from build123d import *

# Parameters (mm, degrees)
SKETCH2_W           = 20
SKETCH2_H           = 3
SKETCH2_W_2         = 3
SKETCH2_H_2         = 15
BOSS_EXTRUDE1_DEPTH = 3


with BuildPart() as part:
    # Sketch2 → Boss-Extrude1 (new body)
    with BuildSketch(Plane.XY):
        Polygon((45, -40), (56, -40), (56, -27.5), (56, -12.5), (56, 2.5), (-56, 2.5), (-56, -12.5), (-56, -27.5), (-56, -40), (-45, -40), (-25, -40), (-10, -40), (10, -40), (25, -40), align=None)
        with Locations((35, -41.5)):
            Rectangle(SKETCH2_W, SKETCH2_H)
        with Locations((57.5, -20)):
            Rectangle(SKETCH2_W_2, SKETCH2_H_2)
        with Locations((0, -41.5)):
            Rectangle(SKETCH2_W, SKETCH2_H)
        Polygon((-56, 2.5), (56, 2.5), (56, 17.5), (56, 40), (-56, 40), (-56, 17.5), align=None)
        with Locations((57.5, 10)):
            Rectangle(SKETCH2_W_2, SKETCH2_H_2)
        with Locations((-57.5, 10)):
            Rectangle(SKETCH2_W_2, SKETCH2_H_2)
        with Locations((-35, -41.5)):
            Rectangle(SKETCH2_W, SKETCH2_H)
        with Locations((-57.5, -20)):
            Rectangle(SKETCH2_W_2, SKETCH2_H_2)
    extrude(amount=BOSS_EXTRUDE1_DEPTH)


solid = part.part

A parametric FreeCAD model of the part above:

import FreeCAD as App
import Part
import Sketcher
from FreeCAD import Vector
Q = App.Units.Quantity

doc = App.newDocument("Part")
body = doc.addObject("PartDesign::Body", "Body")

# Sketch on XY plane
sketch1 = body.newObject("Sketcher::SketchObject", "Sketch")
sketch1.AttachmentSupport = (doc.getObject("XY_Plane"), [""])
sketch1.MapMode = "FlatFace"
sketch1.addGeometry(Part.LineSegment(Vector(56, -40, 0), Vector(56, -27.5, 0)), False)
sketch1.addGeometry(Part.LineSegment(Vector(56, -27.5, 0), Vector(59, -27.5, 0)), False)
sketch1.addGeometry(Part.LineSegment(Vector(59, -27.5, 0), Vector(59, -12.5, 0)), False)
sketch1.addGeometry(Part.LineSegment(Vector(59, -12.5, 0), Vector(56, -12.5, 0)), False)
sketch1.addGeometry(Part.LineSegment(Vector(56, -12.5, 0), Vector(56, 2.5, 0)), False)
sketch1.addGeometry(Part.LineSegment(Vector(56, 2.5, 0), Vector(59, 2.5, 0)), False)
sketch1.addGeometry(Part.LineSegment(Vector(59, 2.5, 0), Vector(59, 17.5, 0)), False)
sketch1.addGeometry(Part.LineSegment(Vector(59, 17.5, 0), Vector(56, 17.5, 0)), False)
sketch1.addGeometry(Part.LineSegment(Vector(56, 17.5, 0), Vector(56, 40, 0)), False)
sketch1.addGeometry(Part.LineSegment(Vector(56, 40, 0), Vector(-56, 40, 0)), False)
sketch1.addGeometry(Part.LineSegment(Vector(-56, 40, 0), Vector(-56, 17.5, 0)), False)
sketch1.addGeometry(Part.LineSegment(Vector(-56, 17.5, 0), Vector(-59, 17.5, 0)), False)
sketch1.addGeometry(Part.LineSegment(Vector(-59, 17.5, 0), Vector(-59, 2.5, 0)), False)
sketch1.addGeometry(Part.LineSegment(Vector(-59, 2.5, 0), Vector(-56, 2.5, 0)), False)
sketch1.addGeometry(Part.LineSegment(Vector(-56, 2.5, 0), Vector(-56, -12.5, 0)), False)
sketch1.addGeometry(Part.LineSegment(Vector(-56, -12.5, 0), Vector(-59, -12.5, 0)), False)
sketch1.addGeometry(Part.LineSegment(Vector(-59, -12.5, 0), Vector(-59, -27.5, 0)), False)
sketch1.addGeometry(Part.LineSegment(Vector(-59, -27.5, 0), Vector(-56, -27.5, 0)), False)
sketch1.addGeometry(Part.LineSegment(Vector(-56, -27.5, 0), Vector(-56, -40, 0)), False)
sketch1.addGeometry(Part.LineSegment(Vector(-56, -40, 0), Vector(-45, -40, 0)), False)
sketch1.addGeometry(Part.LineSegment(Vector(-45, -40, 0), Vector(-45, -43, 0)), False)
sketch1.addGeometry(Part.LineSegment(Vector(-45, -43, 0), Vector(-25, -43, 0)), False)
sketch1.addGeometry(Part.LineSegment(Vector(-25, -43, 0), Vector(-25, -40, 0)), False)
sketch1.addGeometry(Part.LineSegment(Vector(-25, -40, 0), Vector(-10, -40, 0)), False)
sketch1.addGeometry(Part.LineSegment(Vector(-10, -40, 0), Vector(-10, -43, 0)), False)
sketch1.addGeometry(Part.LineSegment(Vector(-10, -43, 0), Vector(10, -43, 0)), False)
sketch1.addGeometry(Part.LineSegment(Vector(10, -43, 0), Vector(10, -40, 0)), False)
sketch1.addGeometry(Part.LineSegment(Vector(10, -40, 0), Vector(25, -40, 0)), False)
sketch1.addGeometry(Part.LineSegment(Vector(25, -40, 0), Vector(25, -43, 0)), False)
sketch1.addGeometry(Part.LineSegment(Vector(25, -43, 0), Vector(45, -43, 0)), False)
sketch1.addGeometry(Part.LineSegment(Vector(45, -43, 0), Vector(45, -40, 0)), False)
sketch1.addGeometry(Part.LineSegment(Vector(45, -40, 0), Vector(56, -40, 0)), False)
sketch1.addConstraint(Sketcher.Constraint("Coincident", 0, 2, 1, 1))
sketch1.addConstraint(Sketcher.Constraint("Coincident", 1, 2, 2, 1))
sketch1.addConstraint(Sketcher.Constraint("Coincident", 2, 2, 3, 1))
sketch1.addConstraint(Sketcher.Constraint("Coincident", 3, 2, 4, 1))
sketch1.addConstraint(Sketcher.Constraint("Coincident", 4, 2, 5, 1))
sketch1.addConstraint(Sketcher.Constraint("Coincident", 5, 2, 6, 1))
sketch1.addConstraint(Sketcher.Constraint("Coincident", 6, 2, 7, 1))
sketch1.addConstraint(Sketcher.Constraint("Coincident", 7, 2, 8, 1))
sketch1.addConstraint(Sketcher.Constraint("Coincident", 8, 2, 9, 1))
sketch1.addConstraint(Sketcher.Constraint("Coincident", 9, 2, 10, 1))
sketch1.addConstraint(Sketcher.Constraint("Coincident", 10, 2, 11, 1))
sketch1.addConstraint(Sketcher.Constraint("Coincident", 11, 2, 12, 1))
sketch1.addConstraint(Sketcher.Constraint("Coincident", 12, 2, 13, 1))
sketch1.addConstraint(Sketcher.Constraint("Coincident", 13, 2, 14, 1))
sketch1.addConstraint(Sketcher.Constraint("Coincident", 14, 2, 15, 1))
sketch1.addConstraint(Sketcher.Constraint("Coincident", 15, 2, 16, 1))
sketch1.addConstraint(Sketcher.Constraint("Coincident", 16, 2, 17, 1))
sketch1.addConstraint(Sketcher.Constraint("Coincident", 17, 2, 18, 1))
sketch1.addConstraint(Sketcher.Constraint("Coincident", 18, 2, 19, 1))
sketch1.addConstraint(Sketcher.Constraint("Coincident", 19, 2, 20, 1))
sketch1.addConstraint(Sketcher.Constraint("Coincident", 20, 2, 21, 1))
sketch1.addConstraint(Sketcher.Constraint("Coincident", 21, 2, 22, 1))
sketch1.addConstraint(Sketcher.Constraint("Coincident", 22, 2, 23, 1))
sketch1.addConstraint(Sketcher.Constraint("Coincident", 23, 2, 24, 1))
sketch1.addConstraint(Sketcher.Constraint("Coincident", 24, 2, 25, 1))
sketch1.addConstraint(Sketcher.Constraint("Coincident", 25, 2, 26, 1))
sketch1.addConstraint(Sketcher.Constraint("Coincident", 26, 2, 27, 1))
sketch1.addConstraint(Sketcher.Constraint("Coincident", 27, 2, 28, 1))
sketch1.addConstraint(Sketcher.Constraint("Coincident", 28, 2, 29, 1))
sketch1.addConstraint(Sketcher.Constraint("Coincident", 29, 2, 30, 1))
sketch1.addConstraint(Sketcher.Constraint("Coincident", 30, 2, 31, 1))
sketch1.addConstraint(Sketcher.Constraint("Coincident", 31, 2, 0, 1))
sketch1.addConstraint(Sketcher.Constraint("Vertical", 0))
sketch1.addConstraint(Sketcher.Constraint("Horizontal", 1))
sketch1.addConstraint(Sketcher.Constraint("Vertical", 2))
sketch1.addConstraint(Sketcher.Constraint("Horizontal", 3))
sketch1.addConstraint(Sketcher.Constraint("Vertical", 4))
sketch1.addConstraint(Sketcher.Constraint("Horizontal", 5))
sketch1.addConstraint(Sketcher.Constraint("Vertical", 6))
sketch1.addConstraint(Sketcher.Constraint("Horizontal", 7))
sketch1.addConstraint(Sketcher.Constraint("Vertical", 8))
sketch1.addConstraint(Sketcher.Constraint("Horizontal", 9))
sketch1.addConstraint(Sketcher.Constraint("Vertical", 10))
sketch1.addConstraint(Sketcher.Constraint("Horizontal", 11))
sketch1.addConstraint(Sketcher.Constraint("Vertical", 12))
sketch1.addConstraint(Sketcher.Constraint("Horizontal", 13))
sketch1.addConstraint(Sketcher.Constraint("Vertical", 14))
sketch1.addConstraint(Sketcher.Constraint("Horizontal", 15))
sketch1.addConstraint(Sketcher.Constraint("Vertical", 16))
sketch1.addConstraint(Sketcher.Constraint("Horizontal", 17))
sketch1.addConstraint(Sketcher.Constraint("Vertical", 18))
sketch1.addConstraint(Sketcher.Constraint("Horizontal", 19))
sketch1.addConstraint(Sketcher.Constraint("Vertical", 20))
sketch1.addConstraint(Sketcher.Constraint("Horizontal", 21))
sketch1.addConstraint(Sketcher.Constraint("Vertical", 22))
sketch1.addConstraint(Sketcher.Constraint("Horizontal", 23))
sketch1.addConstraint(Sketcher.Constraint("Vertical", 24))
sketch1.addConstraint(Sketcher.Constraint("Horizontal", 25))
sketch1.addConstraint(Sketcher.Constraint("Vertical", 26))
sketch1.addConstraint(Sketcher.Constraint("Horizontal", 27))
sketch1.addConstraint(Sketcher.Constraint("Vertical", 28))
sketch1.addConstraint(Sketcher.Constraint("Horizontal", 29))
sketch1.addConstraint(Sketcher.Constraint("Vertical", 30))
sketch1.addConstraint(Sketcher.Constraint("Horizontal", 31))
sketch1.addConstraint(Sketcher.Constraint("Symmetric", 8, 2, 18, 2, -1, 1))
sketch1.addConstraint(Sketcher.Constraint("Symmetric", 9, 2, 31, 2, -1, 1))
sketch1.addConstraint(Sketcher.Constraint("Symmetric", 7, 2, 10, 2, -2))
sketch1.addConstraint(Sketcher.Constraint("Symmetric", 5, 2, 12, 2, -2))
sketch1.addConstraint(Sketcher.Constraint("Symmetric", 3, 2, 14, 2, -2))
sketch1.addConstraint(Sketcher.Constraint("Symmetric", 1, 2, 16, 2, -2))
sketch1.addConstraint(Sketcher.Constraint("Symmetric", 23, 2, 26, 2, -2))
sketch1.addConstraint(Sketcher.Constraint("Symmetric", 21, 2, 28, 2, -2))
sketch1.addConstraint(Sketcher.Constraint("Horizontal", 19, 2, 22, 2))
sketch1.addConstraint(Sketcher.Constraint("Horizontal", 21, 2, 24, 2))
sketch1.addConstraint(Sketcher.Constraint("Vertical", 0, 2, 3, 2))
sketch1.addConstraint(Sketcher.Constraint("Vertical", 2, 2, 5, 2))
sketch1.addConstraint(Sketcher.Constraint("Equal", 21, 25))
sketch1.addConstraint(Sketcher.Constraint("Equal", 25, 29))
sketch1.addConstraint(Sketcher.Constraint("Equal", 27, 2))
sketch1.addConstraint(Sketcher.Constraint("Equal", 2, 4))
sketch1.addConstraint(Sketcher.Constraint("Equal", 4, 6))
sketch1.addConstraint(Sketcher.Constraint("Equal", 17, 20))
sketch1.addConstraint(Sketcher.Constraint("DistanceX", 1, 1, 1, 2, Q("3 mm")))
sketch1.addConstraint(Sketcher.Constraint("DistanceX", 9, 2, 9, 1, Q("112 mm")))
sketch1.addConstraint(Sketcher.Constraint("DistanceX", 19, 1, 19, 2, Q("11 mm")))
sketch1.addConstraint(Sketcher.Constraint("DistanceX", 21, 1, 21, 2, Q("20 mm")))
sketch1.addConstraint(Sketcher.Constraint("DistanceY", 0, 1, 0, 2, Q("12.5 mm")))
sketch1.addConstraint(Sketcher.Constraint("DistanceY", 8, 1, 8, 2, Q("22.5 mm")))
pad1 = body.newObject("PartDesign::Pad", "Pad")
pad1.Profile = sketch1
pad1.Length = 3

doc.recompute()
